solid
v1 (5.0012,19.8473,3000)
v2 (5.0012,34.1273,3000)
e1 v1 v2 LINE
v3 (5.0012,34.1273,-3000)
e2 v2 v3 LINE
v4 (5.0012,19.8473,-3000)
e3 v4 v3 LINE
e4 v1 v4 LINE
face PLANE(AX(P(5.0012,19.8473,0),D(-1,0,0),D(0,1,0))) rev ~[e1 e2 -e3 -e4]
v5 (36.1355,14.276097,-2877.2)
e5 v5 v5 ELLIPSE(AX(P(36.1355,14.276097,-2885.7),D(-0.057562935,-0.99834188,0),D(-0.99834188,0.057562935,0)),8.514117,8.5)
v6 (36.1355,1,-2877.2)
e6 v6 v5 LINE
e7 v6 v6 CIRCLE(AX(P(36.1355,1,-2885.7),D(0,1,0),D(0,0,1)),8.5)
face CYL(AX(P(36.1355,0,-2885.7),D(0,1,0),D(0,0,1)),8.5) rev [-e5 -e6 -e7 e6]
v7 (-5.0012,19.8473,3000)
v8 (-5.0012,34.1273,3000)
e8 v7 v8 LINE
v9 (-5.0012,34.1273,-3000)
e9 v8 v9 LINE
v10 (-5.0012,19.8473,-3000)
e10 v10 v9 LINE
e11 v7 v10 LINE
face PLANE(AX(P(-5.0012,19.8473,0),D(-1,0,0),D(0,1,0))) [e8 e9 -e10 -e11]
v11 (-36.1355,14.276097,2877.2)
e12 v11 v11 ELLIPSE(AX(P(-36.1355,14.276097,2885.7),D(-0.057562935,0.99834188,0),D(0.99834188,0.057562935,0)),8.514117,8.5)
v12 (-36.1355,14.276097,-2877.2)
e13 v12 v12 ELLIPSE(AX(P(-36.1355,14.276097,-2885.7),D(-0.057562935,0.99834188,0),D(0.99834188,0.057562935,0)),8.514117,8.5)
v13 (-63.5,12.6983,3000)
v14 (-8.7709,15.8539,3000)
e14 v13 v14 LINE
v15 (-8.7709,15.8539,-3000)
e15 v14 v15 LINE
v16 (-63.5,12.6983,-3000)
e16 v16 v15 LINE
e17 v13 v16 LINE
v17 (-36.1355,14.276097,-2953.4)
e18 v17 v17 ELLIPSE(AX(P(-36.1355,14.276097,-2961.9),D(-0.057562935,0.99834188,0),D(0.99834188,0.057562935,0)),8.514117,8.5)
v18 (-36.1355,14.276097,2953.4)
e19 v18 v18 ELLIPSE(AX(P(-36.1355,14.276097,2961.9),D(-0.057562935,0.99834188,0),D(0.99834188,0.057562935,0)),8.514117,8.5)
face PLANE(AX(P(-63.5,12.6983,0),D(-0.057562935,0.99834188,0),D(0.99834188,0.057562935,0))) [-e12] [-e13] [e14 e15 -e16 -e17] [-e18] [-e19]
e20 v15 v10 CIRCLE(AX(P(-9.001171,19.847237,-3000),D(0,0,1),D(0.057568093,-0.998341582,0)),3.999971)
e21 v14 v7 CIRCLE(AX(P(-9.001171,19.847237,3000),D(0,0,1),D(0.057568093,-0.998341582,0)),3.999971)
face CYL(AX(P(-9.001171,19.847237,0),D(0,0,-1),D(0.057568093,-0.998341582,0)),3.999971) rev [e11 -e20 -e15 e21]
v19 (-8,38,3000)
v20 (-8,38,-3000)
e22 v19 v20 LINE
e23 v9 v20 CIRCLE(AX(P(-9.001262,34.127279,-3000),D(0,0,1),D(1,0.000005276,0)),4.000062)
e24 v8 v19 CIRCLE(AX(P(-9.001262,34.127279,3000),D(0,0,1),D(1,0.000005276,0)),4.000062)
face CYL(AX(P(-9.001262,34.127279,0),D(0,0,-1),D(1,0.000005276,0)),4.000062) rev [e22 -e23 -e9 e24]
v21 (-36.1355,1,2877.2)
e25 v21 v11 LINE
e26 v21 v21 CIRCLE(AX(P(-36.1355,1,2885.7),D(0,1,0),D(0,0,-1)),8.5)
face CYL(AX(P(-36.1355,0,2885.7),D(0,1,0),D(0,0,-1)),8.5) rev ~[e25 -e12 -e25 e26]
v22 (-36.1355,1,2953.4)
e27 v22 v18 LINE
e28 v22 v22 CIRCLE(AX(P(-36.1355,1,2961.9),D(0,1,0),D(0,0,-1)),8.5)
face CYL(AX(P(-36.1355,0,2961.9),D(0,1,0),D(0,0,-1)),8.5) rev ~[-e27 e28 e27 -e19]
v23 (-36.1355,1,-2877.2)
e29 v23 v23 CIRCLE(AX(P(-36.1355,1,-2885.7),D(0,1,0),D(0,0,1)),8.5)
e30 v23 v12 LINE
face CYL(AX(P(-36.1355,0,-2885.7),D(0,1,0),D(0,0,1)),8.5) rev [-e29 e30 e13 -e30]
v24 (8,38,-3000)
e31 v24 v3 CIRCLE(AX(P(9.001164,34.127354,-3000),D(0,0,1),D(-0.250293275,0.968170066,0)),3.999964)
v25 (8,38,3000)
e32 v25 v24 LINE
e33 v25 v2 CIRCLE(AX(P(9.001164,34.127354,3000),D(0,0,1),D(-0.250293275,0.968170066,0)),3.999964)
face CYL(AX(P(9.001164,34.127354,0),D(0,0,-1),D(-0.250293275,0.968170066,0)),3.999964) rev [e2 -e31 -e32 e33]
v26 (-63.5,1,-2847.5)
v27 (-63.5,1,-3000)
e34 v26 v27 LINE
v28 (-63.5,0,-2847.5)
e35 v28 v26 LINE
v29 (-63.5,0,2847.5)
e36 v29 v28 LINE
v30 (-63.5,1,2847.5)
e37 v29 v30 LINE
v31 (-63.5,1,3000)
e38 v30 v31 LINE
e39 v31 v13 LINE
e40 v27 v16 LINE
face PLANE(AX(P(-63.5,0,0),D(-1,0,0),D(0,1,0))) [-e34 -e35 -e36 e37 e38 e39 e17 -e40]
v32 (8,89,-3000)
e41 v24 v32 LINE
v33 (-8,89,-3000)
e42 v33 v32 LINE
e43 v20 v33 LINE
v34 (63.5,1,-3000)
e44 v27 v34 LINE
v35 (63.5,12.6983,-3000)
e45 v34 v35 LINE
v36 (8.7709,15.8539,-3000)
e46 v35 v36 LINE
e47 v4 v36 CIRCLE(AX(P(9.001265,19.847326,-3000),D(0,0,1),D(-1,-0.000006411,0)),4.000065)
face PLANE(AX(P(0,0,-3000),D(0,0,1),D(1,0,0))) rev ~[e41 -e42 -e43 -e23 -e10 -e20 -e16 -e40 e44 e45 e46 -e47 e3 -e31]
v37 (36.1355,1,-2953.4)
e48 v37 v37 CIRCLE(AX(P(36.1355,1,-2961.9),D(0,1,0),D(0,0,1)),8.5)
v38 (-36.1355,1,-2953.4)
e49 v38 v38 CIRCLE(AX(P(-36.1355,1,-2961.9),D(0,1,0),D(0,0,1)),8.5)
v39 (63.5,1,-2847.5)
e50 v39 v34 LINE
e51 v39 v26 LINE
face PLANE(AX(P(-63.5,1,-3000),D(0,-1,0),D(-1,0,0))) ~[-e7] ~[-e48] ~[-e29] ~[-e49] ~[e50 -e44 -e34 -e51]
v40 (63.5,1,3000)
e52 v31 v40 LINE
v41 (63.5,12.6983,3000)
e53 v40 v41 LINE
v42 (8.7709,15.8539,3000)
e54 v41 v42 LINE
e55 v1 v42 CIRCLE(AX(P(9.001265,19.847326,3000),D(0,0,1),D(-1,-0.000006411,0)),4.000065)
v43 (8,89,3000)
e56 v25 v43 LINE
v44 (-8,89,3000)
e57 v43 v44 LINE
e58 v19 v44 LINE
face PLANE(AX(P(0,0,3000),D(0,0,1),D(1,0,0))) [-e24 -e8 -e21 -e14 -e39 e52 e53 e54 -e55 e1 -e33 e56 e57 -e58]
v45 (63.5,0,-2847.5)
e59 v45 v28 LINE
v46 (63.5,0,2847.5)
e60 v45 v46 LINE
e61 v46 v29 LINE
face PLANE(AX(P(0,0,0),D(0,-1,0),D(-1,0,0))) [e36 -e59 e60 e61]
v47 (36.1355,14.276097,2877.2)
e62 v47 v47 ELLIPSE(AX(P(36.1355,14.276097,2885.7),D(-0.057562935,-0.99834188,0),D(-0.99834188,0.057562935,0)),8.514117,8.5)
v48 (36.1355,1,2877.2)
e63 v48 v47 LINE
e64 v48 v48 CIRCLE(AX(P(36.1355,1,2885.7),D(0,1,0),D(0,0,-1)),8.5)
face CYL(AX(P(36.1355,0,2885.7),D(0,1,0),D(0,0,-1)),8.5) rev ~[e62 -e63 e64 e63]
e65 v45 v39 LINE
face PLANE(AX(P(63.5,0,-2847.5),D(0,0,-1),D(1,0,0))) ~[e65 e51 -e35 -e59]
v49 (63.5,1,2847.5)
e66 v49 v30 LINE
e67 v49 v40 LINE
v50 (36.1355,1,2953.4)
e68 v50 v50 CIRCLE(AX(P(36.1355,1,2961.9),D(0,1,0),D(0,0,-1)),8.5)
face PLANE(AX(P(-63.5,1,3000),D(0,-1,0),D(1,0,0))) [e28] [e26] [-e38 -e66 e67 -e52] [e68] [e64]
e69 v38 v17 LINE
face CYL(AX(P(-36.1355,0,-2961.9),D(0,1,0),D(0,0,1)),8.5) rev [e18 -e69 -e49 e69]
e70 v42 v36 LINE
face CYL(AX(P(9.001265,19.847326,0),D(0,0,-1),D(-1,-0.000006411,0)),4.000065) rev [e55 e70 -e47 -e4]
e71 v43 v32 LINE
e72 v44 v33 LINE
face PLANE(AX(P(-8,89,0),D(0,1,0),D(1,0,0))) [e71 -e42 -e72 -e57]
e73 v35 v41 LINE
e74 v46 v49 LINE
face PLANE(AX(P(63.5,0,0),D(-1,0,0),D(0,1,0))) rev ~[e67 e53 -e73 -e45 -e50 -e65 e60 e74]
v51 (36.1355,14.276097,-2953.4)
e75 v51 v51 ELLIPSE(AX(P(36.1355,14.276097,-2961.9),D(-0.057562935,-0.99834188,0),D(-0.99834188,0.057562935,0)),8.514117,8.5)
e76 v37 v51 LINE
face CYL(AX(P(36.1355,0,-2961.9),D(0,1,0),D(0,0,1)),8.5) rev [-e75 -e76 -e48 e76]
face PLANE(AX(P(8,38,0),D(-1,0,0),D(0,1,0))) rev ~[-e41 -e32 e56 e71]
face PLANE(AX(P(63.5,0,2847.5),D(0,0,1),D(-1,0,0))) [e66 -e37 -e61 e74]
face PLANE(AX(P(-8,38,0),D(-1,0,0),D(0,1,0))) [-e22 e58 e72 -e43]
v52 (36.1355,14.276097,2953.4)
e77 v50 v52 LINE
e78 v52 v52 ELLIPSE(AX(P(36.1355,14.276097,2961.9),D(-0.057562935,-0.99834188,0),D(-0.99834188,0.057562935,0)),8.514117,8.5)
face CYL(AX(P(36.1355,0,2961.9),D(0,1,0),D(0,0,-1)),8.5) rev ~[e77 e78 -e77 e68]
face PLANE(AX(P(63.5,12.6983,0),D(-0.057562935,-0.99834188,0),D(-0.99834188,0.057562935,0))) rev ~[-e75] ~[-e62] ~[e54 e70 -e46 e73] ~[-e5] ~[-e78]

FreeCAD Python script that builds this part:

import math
import FreeCAD as App
import Part
import Sketcher
from FreeCAD import Vector
Q = App.Units.Quantity


def add_polygon(sketch, points):
    """Adds a closed chain of lines whose ends are joined by coincident constraints."""
    first, n = sketch.GeometryCount, len(points)
    for a, b in zip(points, points[1:] + points[:1]):
        sketch.addGeometry(Part.LineSegment(App.Vector(*a, 0), App.Vector(*b, 0)), False)
    for i in range(n):
        sketch.addConstraint(Sketcher.Constraint("Coincident", first + i, 2, first + (i + 1) % n, 1))

doc = App.newDocument("Part")
params = doc.addObject("Spreadsheet::Sheet", "Params")
for row, (alias, value) in enumerate([
    ("sketch1_radius", "4 mm"),
    ("sketch1_height", "51 mm"),
    ("sketch1_height2", "14.28 mm"),
    ("sketch1_length", "54.82 mm"),
    ("pad1_length", "6000 mm"),
    ("sketch2_diameter", "17 mm"),
    ("hole_diameter", "17 mm"),
    ("sketch3_diameter", "17 mm"),
    ("sketch3_height", "152.5 mm"),
    ("sketch3_width", "127 mm"),
    ("pocket1_length", "1 mm"),
], start=1):
    params.set(f"A{row}", alias)
    params.set(f"B{row}", "=" + value)
    params.setAlias(f"B{row}", alias)

body = doc.addObject("PartDesign::Body", "Body")

# Sketch on XY plane
sketch1 = body.newObject("Sketcher::SketchObject", "Sketch")
sketch1.AttachmentSupport = (doc.getObject("XY_Plane"), [""])
sketch1.MapMode = "FlatFace"
sketch1.addGeometry(Part.LineSegment(Vector(-63.5, 0, 0), Vector(63.5, 0, 0)), False)
sketch1.addGeometry(Part.LineSegment(Vector(63.5, 0, 0), Vector(63.5, 12.7, 0)), False)
sketch1.addGeometry(Part.LineSegment(Vector(63.5, 12.7, 0), Vector(8.8, 15.9, 0)), False)
sketch1.addGeometry(Part.ArcOfCircle(Part.Circle(Vector(9, 19.8, 0), Vector(0, 0, 1), 4), math.radians(180), math.radians(267)), False)
sketch1.addGeometry(Part.LineSegment(Vector(5, 19.8, 0), Vector(5, 34.1, 0)), False)
sketch1.addGeometry(Part.ArcOfCircle(Part.Circle(Vector(9, 34.1, 0), Vector(0, 0, 1), 4), math.radians(104), math.radians(180)), False)
sketch1.addGeometry(Part.LineSegment(Vector(8, 38, 0), Vector(8, 89, 0)), False)
sketch1.addGeometry(Part.LineSegment(Vector(8, 89, 0), Vector(-8, 89, 0)), False)
sketch1.addGeometry(Part.LineSegment(Vector(-8, 89, 0), Vector(-8, 38, 0)), False)
sketch1.addGeometry(Part.ArcOfCircle(Part.Circle(Vector(-9, 34.1, 0), Vector(0, 0, 1), 4), math.radians(0), math.radians(76)), False)
sketch1.addGeometry(Part.LineSegment(Vector(-5, 34.1, 0), Vector(-5, 19.8, 0)), False)
sketch1.addGeometry(Part.ArcOfCircle(Part.Circle(Vector(-9, 19.8, 0), Vector(0, 0, 1), 4), math.radians(-87), math.radians(0)), False)
sketch1.addGeometry(Part.LineSegment(Vector(-8.8, 15.9, 0), Vector(-63.5, 12.7, 0)), False)
sketch1.addGeometry(Part.LineSegment(Vector(-63.5, 12.7, 0), Vector(-63.5, 0, 0)), False)
sketch1.addConstraint(Sketcher.Constraint("Coincident", 0, 2, 1, 1))
sketch1.addConstraint(Sketcher.Constraint("Coincident", 1, 2, 2, 1))
sketch1.addConstraint(Sketcher.Constraint("Tangent", 2, 2, 3, 2))
sketch1.addConstraint(Sketcher.Constraint("Tangent", 3, 1, 4, 1))
sketch1.addConstraint(Sketcher.Constraint("Tangent", 4, 2, 5, 2))
sketch1.addConstraint(Sketcher.Constraint("Coincident", 5, 1, 6, 1))
sketch1.addConstraint(Sketcher.Constraint("Coincident", 6, 2, 7, 1))
sketch1.addConstraint(Sketcher.Constraint("Coincident", 7, 2, 8, 1))
sketch1.addConstraint(Sketcher.Constraint("Coincident", 8, 2, 9, 2))
sketch1.addConstraint(Sketcher.Constraint("Tangent", 9, 1, 10, 1))
sketch1.addConstraint(Sketcher.Constraint("Tangent", 10, 2, 11, 2))
sketch1.addConstraint(Sketcher.Constraint("Tangent", 11, 1, 12, 1))
sketch1.addConstraint(Sketcher.Constraint("Coincident", 12, 2, 13, 1))
sketch1.addConstraint(Sketcher.Constraint("Coincident", 13, 2, 0, 1))
sketch1.addConstraint(Sketcher.Constraint("Horizontal", 0))
sketch1.addConstraint(Sketcher.Constraint("Vertical", 1))
sketch1.addConstraint(Sketcher.Constraint("Vertical", 4))
sketch1.addConstraint(Sketcher.Constraint("Vertical", 6))
sketch1.addConstraint(Sketcher.Constraint("Horizontal", 7))
sketch1.addConstraint(Sketcher.Constraint("Vertical", 8))
sketch1.addConstraint(Sketcher.Constraint("Vertical", 10))
sketch1.addConstraint(Sketcher.Constraint("Vertical", 13))
sketch1.addConstraint(Sketcher.Constraint("Equal", 3, 5))
sketch1.addConstraint(Sketcher.Constraint("Equal", 5, 9))
sketch1.addConstraint(Sketcher.Constraint("Equal", 9, 11))
sketch1.addConstraint(Sketcher.Constraint("Symmetric", 0, 2, 13, 2, -1, 1))
sketch1.addConstraint(Sketcher.Constraint("Symmetric", 5, 3, 9, 3, -2))
sketch1.addConstraint(Sketcher.Constraint("Symmetric", 2, 2, 11, 1, -2))
sketch1.addConstraint(Sketcher.Constraint("Horizontal", 5, 1, 8, 2))
sketch1.addConstraint(Sketcher.Constraint("Radius", 3, Q("4 mm")))
sketch1.addConstraint(Sketcher.Constraint("DistanceY", 6, 1, 6, 2, Q("51 mm")))
sketch1.addConstraint(Sketcher.Constraint("DistanceX", -1, 1, 5, 1, Q("8 mm")))
sketch1.addConstraint(Sketcher.Constraint("DistanceY", -1, 1, 6, 2, Q("89 mm")))
sketch1.addConstraint(Sketcher.Constraint("DistanceY", 4, 1, 4, 2, Q("14.28 mm")))
sketch1.addConstraint(Sketcher.Constraint("DistanceX", -1, 1, 0, 2, Q("63.5 mm")))
sketch1.addConstraint(Sketcher.Constraint("Distance", 2, Q("54.82 mm")))
sketch1.addConstraint(Sketcher.Constraint("Angle", 2, Q("176.7 deg")))
sketch1.setExpression("Constraints[29]", "Params.sketch1_radius")
sketch1.setExpression("Constraints[30]", "Params.sketch1_height")
sketch1.setExpression("Constraints[33]", "Params.sketch1_height2")
sketch1.setExpression("Constraints[35]", "Params.sketch1_length")
pad1 = body.newObject("PartDesign::Pad", "Pad")
pad1.Profile = sketch1
pad1.setExpression("Length", "Params.pad1_length")
pad1.Midplane = True

# Sketch on XZ plane
sketch2 = body.newObject("Sketcher::SketchObject", "Sketch001")
sketch2.AttachmentSupport = (doc.getObject("XZ_Plane"), [""])
sketch2.MapMode = "FlatFace"
sketch2.addGeometry(Part.Circle(Vector(36, 2962, 0), Vector(0, 0, 1), 8), False)
sketch2.addGeometry(Part.Circle(Vector(36, 2886, 0), Vector(0, 0, 1), 8), False)
sketch2.addGeometry(Part.Circle(Vector(-36, 2962, 0), Vector(0, 0, 1), 8), False)
sketch2.addGeometry(Part.Circle(Vector(-36, 2886, 0), Vector(0, 0, 1), 8), False)
sketch2.addConstraint(Sketcher.Constraint("Equal", 0, 1))
sketch2.addConstraint(Sketcher.Constraint("Equal", 1, 2))
sketch2.addConstraint(Sketcher.Constraint("Equal", 2, 3))
sketch2.addConstraint(Sketcher.Constraint("Symmetric", 0, 3, 2, 3, -2))
sketch2.addConstraint(Sketcher.Constraint("Symmetric", 1, 3, 3, 3, -2))
sketch2.addConstraint(Sketcher.Constraint("Vertical", 0, 3, 1, 3))
sketch2.addConstraint(Sketcher.Constraint("Diameter", 0, Q("17 mm")))
sketch2.addConstraint(Sketcher.Constraint("DistanceY", -1, 1, 0, 3, Q("2961.9 mm")))
sketch2.addConstraint(Sketcher.Constraint("DistanceY", -1, 1, 1, 3, Q("2885.7 mm")))
sketch2.addConstraint(Sketcher.Constraint("DistanceX", 2, 3, 0, 3, Q("72.271 mm")))
sketch2.setExpression("Constraints[6]", "Params.sketch2_diameter")
doc.recompute()
hole = body.newObject("PartDesign::Hole", "Hole")
hole.Profile = sketch2
hole.ThreadType = "None"
hole.setExpression("Diameter", "Params.hole_diameter")
hole.DepthType = "ThroughAll"

# Sketch on XZ plane
sketch3 = body.newObject("Sketcher::SketchObject", "Sketch002")
sketch3.AttachmentSupport = (doc.getObject("XZ_Plane"), [""])
sketch3.MapMode = "FlatFace"
add_polygon(sketch3, [(-64, 2848), (64, 2848), (64, 3000), (-64, 3000)])  # lines 0-3
sketch3.addGeometry(Part.Circle(Vector(-36, 2886, 0), Vector(0, 0, 1), 8), False)  # 4
sketch3.addGeometry(Part.Circle(Vector(-36, 2962, 0), Vector(0, 0, 1), 8), False)  # 5
sketch3.addGeometry(Part.Circle(Vector(36, 2886, 0), Vector(0, 0, 1), 8), False)  # 6
sketch3.addGeometry(Part.Circle(Vector(36, 2962, 0), Vector(0, 0, 1), 8), False)  # 7
sketch3.addConstraint(Sketcher.Constraint("Horizontal", 0))
sketch3.addConstraint(Sketcher.Constraint("Vertical", 1))
sketch3.addConstraint(Sketcher.Constraint("Horizontal", 2))
sketch3.addConstraint(Sketcher.Constraint("Vertical", 3))
sketch3.addConstraint(Sketcher.Constraint("Equal", 4, 5))
sketch3.addConstraint(Sketcher.Constraint("Equal", 5, 6))
sketch3.addConstraint(Sketcher.Constraint("Equal", 6, 7))
sketch3.addConstraint(Sketcher.Constraint("Symmetric", 4, 3, 6, 3, -2))
sketch3.addConstraint(Sketcher.Constraint("Symmetric", 5, 3, 7, 3, -2))
sketch3.addConstraint(Sketcher.Constraint("Vertical", 4, 3, 5, 3))
sketch3.addConstraint(Sketcher.Constraint("Diameter", 4, Q("17 mm")))
sketch3.addConstraint(Sketcher.Constraint("DistanceY", 1, 1, 1, 2, Q("152.5 mm")))
sketch3.addConstraint(Sketcher.Constraint("DistanceX", 0, 1, 0, 2, Q("127 mm")))
sketch3.addConstraint(Sketcher.Constraint("DistanceY", -1, 1, 1, 2, Q("3000 mm")))
sketch3.addConstraint(Sketcher.Constraint("DistanceY", -1, 1, 4, 3, Q("2885.7 mm")))
sketch3.addConstraint(Sketcher.Constraint("DistanceY", -1, 1, 5, 3, Q("2961.9 mm")))
sketch3.addConstraint(Sketcher.Constraint("DistanceX", -1, 1, 0, 2, Q("63.5 mm")))
sketch3.addConstraint(Sketcher.Constraint("DistanceX", 4, 3, 6, 3, Q("72.271 mm")))
sketch3.setExpression("Constraints[14]", "Params.sketch3_diameter")
sketch3.setExpression("Constraints[15]", "Params.sketch3_height")
sketch3.setExpression("Constraints[16]", "Params.sketch3_width")
pocket1 = body.newObject("PartDesign::Pocket", "Pocket")
pocket1.Profile = sketch3
pocket1.setExpression("Length", "Params.pocket1_length")
doc.recompute()

mirrored = body.newObject("PartDesign::Mirrored", "Mirrored")
mirrored.Originals = [hole, pocket1]
mirrored.MirrorPlane = (doc.getObject("XY_Plane"), [""])
body.Tip = mirrored

doc.recompute()
